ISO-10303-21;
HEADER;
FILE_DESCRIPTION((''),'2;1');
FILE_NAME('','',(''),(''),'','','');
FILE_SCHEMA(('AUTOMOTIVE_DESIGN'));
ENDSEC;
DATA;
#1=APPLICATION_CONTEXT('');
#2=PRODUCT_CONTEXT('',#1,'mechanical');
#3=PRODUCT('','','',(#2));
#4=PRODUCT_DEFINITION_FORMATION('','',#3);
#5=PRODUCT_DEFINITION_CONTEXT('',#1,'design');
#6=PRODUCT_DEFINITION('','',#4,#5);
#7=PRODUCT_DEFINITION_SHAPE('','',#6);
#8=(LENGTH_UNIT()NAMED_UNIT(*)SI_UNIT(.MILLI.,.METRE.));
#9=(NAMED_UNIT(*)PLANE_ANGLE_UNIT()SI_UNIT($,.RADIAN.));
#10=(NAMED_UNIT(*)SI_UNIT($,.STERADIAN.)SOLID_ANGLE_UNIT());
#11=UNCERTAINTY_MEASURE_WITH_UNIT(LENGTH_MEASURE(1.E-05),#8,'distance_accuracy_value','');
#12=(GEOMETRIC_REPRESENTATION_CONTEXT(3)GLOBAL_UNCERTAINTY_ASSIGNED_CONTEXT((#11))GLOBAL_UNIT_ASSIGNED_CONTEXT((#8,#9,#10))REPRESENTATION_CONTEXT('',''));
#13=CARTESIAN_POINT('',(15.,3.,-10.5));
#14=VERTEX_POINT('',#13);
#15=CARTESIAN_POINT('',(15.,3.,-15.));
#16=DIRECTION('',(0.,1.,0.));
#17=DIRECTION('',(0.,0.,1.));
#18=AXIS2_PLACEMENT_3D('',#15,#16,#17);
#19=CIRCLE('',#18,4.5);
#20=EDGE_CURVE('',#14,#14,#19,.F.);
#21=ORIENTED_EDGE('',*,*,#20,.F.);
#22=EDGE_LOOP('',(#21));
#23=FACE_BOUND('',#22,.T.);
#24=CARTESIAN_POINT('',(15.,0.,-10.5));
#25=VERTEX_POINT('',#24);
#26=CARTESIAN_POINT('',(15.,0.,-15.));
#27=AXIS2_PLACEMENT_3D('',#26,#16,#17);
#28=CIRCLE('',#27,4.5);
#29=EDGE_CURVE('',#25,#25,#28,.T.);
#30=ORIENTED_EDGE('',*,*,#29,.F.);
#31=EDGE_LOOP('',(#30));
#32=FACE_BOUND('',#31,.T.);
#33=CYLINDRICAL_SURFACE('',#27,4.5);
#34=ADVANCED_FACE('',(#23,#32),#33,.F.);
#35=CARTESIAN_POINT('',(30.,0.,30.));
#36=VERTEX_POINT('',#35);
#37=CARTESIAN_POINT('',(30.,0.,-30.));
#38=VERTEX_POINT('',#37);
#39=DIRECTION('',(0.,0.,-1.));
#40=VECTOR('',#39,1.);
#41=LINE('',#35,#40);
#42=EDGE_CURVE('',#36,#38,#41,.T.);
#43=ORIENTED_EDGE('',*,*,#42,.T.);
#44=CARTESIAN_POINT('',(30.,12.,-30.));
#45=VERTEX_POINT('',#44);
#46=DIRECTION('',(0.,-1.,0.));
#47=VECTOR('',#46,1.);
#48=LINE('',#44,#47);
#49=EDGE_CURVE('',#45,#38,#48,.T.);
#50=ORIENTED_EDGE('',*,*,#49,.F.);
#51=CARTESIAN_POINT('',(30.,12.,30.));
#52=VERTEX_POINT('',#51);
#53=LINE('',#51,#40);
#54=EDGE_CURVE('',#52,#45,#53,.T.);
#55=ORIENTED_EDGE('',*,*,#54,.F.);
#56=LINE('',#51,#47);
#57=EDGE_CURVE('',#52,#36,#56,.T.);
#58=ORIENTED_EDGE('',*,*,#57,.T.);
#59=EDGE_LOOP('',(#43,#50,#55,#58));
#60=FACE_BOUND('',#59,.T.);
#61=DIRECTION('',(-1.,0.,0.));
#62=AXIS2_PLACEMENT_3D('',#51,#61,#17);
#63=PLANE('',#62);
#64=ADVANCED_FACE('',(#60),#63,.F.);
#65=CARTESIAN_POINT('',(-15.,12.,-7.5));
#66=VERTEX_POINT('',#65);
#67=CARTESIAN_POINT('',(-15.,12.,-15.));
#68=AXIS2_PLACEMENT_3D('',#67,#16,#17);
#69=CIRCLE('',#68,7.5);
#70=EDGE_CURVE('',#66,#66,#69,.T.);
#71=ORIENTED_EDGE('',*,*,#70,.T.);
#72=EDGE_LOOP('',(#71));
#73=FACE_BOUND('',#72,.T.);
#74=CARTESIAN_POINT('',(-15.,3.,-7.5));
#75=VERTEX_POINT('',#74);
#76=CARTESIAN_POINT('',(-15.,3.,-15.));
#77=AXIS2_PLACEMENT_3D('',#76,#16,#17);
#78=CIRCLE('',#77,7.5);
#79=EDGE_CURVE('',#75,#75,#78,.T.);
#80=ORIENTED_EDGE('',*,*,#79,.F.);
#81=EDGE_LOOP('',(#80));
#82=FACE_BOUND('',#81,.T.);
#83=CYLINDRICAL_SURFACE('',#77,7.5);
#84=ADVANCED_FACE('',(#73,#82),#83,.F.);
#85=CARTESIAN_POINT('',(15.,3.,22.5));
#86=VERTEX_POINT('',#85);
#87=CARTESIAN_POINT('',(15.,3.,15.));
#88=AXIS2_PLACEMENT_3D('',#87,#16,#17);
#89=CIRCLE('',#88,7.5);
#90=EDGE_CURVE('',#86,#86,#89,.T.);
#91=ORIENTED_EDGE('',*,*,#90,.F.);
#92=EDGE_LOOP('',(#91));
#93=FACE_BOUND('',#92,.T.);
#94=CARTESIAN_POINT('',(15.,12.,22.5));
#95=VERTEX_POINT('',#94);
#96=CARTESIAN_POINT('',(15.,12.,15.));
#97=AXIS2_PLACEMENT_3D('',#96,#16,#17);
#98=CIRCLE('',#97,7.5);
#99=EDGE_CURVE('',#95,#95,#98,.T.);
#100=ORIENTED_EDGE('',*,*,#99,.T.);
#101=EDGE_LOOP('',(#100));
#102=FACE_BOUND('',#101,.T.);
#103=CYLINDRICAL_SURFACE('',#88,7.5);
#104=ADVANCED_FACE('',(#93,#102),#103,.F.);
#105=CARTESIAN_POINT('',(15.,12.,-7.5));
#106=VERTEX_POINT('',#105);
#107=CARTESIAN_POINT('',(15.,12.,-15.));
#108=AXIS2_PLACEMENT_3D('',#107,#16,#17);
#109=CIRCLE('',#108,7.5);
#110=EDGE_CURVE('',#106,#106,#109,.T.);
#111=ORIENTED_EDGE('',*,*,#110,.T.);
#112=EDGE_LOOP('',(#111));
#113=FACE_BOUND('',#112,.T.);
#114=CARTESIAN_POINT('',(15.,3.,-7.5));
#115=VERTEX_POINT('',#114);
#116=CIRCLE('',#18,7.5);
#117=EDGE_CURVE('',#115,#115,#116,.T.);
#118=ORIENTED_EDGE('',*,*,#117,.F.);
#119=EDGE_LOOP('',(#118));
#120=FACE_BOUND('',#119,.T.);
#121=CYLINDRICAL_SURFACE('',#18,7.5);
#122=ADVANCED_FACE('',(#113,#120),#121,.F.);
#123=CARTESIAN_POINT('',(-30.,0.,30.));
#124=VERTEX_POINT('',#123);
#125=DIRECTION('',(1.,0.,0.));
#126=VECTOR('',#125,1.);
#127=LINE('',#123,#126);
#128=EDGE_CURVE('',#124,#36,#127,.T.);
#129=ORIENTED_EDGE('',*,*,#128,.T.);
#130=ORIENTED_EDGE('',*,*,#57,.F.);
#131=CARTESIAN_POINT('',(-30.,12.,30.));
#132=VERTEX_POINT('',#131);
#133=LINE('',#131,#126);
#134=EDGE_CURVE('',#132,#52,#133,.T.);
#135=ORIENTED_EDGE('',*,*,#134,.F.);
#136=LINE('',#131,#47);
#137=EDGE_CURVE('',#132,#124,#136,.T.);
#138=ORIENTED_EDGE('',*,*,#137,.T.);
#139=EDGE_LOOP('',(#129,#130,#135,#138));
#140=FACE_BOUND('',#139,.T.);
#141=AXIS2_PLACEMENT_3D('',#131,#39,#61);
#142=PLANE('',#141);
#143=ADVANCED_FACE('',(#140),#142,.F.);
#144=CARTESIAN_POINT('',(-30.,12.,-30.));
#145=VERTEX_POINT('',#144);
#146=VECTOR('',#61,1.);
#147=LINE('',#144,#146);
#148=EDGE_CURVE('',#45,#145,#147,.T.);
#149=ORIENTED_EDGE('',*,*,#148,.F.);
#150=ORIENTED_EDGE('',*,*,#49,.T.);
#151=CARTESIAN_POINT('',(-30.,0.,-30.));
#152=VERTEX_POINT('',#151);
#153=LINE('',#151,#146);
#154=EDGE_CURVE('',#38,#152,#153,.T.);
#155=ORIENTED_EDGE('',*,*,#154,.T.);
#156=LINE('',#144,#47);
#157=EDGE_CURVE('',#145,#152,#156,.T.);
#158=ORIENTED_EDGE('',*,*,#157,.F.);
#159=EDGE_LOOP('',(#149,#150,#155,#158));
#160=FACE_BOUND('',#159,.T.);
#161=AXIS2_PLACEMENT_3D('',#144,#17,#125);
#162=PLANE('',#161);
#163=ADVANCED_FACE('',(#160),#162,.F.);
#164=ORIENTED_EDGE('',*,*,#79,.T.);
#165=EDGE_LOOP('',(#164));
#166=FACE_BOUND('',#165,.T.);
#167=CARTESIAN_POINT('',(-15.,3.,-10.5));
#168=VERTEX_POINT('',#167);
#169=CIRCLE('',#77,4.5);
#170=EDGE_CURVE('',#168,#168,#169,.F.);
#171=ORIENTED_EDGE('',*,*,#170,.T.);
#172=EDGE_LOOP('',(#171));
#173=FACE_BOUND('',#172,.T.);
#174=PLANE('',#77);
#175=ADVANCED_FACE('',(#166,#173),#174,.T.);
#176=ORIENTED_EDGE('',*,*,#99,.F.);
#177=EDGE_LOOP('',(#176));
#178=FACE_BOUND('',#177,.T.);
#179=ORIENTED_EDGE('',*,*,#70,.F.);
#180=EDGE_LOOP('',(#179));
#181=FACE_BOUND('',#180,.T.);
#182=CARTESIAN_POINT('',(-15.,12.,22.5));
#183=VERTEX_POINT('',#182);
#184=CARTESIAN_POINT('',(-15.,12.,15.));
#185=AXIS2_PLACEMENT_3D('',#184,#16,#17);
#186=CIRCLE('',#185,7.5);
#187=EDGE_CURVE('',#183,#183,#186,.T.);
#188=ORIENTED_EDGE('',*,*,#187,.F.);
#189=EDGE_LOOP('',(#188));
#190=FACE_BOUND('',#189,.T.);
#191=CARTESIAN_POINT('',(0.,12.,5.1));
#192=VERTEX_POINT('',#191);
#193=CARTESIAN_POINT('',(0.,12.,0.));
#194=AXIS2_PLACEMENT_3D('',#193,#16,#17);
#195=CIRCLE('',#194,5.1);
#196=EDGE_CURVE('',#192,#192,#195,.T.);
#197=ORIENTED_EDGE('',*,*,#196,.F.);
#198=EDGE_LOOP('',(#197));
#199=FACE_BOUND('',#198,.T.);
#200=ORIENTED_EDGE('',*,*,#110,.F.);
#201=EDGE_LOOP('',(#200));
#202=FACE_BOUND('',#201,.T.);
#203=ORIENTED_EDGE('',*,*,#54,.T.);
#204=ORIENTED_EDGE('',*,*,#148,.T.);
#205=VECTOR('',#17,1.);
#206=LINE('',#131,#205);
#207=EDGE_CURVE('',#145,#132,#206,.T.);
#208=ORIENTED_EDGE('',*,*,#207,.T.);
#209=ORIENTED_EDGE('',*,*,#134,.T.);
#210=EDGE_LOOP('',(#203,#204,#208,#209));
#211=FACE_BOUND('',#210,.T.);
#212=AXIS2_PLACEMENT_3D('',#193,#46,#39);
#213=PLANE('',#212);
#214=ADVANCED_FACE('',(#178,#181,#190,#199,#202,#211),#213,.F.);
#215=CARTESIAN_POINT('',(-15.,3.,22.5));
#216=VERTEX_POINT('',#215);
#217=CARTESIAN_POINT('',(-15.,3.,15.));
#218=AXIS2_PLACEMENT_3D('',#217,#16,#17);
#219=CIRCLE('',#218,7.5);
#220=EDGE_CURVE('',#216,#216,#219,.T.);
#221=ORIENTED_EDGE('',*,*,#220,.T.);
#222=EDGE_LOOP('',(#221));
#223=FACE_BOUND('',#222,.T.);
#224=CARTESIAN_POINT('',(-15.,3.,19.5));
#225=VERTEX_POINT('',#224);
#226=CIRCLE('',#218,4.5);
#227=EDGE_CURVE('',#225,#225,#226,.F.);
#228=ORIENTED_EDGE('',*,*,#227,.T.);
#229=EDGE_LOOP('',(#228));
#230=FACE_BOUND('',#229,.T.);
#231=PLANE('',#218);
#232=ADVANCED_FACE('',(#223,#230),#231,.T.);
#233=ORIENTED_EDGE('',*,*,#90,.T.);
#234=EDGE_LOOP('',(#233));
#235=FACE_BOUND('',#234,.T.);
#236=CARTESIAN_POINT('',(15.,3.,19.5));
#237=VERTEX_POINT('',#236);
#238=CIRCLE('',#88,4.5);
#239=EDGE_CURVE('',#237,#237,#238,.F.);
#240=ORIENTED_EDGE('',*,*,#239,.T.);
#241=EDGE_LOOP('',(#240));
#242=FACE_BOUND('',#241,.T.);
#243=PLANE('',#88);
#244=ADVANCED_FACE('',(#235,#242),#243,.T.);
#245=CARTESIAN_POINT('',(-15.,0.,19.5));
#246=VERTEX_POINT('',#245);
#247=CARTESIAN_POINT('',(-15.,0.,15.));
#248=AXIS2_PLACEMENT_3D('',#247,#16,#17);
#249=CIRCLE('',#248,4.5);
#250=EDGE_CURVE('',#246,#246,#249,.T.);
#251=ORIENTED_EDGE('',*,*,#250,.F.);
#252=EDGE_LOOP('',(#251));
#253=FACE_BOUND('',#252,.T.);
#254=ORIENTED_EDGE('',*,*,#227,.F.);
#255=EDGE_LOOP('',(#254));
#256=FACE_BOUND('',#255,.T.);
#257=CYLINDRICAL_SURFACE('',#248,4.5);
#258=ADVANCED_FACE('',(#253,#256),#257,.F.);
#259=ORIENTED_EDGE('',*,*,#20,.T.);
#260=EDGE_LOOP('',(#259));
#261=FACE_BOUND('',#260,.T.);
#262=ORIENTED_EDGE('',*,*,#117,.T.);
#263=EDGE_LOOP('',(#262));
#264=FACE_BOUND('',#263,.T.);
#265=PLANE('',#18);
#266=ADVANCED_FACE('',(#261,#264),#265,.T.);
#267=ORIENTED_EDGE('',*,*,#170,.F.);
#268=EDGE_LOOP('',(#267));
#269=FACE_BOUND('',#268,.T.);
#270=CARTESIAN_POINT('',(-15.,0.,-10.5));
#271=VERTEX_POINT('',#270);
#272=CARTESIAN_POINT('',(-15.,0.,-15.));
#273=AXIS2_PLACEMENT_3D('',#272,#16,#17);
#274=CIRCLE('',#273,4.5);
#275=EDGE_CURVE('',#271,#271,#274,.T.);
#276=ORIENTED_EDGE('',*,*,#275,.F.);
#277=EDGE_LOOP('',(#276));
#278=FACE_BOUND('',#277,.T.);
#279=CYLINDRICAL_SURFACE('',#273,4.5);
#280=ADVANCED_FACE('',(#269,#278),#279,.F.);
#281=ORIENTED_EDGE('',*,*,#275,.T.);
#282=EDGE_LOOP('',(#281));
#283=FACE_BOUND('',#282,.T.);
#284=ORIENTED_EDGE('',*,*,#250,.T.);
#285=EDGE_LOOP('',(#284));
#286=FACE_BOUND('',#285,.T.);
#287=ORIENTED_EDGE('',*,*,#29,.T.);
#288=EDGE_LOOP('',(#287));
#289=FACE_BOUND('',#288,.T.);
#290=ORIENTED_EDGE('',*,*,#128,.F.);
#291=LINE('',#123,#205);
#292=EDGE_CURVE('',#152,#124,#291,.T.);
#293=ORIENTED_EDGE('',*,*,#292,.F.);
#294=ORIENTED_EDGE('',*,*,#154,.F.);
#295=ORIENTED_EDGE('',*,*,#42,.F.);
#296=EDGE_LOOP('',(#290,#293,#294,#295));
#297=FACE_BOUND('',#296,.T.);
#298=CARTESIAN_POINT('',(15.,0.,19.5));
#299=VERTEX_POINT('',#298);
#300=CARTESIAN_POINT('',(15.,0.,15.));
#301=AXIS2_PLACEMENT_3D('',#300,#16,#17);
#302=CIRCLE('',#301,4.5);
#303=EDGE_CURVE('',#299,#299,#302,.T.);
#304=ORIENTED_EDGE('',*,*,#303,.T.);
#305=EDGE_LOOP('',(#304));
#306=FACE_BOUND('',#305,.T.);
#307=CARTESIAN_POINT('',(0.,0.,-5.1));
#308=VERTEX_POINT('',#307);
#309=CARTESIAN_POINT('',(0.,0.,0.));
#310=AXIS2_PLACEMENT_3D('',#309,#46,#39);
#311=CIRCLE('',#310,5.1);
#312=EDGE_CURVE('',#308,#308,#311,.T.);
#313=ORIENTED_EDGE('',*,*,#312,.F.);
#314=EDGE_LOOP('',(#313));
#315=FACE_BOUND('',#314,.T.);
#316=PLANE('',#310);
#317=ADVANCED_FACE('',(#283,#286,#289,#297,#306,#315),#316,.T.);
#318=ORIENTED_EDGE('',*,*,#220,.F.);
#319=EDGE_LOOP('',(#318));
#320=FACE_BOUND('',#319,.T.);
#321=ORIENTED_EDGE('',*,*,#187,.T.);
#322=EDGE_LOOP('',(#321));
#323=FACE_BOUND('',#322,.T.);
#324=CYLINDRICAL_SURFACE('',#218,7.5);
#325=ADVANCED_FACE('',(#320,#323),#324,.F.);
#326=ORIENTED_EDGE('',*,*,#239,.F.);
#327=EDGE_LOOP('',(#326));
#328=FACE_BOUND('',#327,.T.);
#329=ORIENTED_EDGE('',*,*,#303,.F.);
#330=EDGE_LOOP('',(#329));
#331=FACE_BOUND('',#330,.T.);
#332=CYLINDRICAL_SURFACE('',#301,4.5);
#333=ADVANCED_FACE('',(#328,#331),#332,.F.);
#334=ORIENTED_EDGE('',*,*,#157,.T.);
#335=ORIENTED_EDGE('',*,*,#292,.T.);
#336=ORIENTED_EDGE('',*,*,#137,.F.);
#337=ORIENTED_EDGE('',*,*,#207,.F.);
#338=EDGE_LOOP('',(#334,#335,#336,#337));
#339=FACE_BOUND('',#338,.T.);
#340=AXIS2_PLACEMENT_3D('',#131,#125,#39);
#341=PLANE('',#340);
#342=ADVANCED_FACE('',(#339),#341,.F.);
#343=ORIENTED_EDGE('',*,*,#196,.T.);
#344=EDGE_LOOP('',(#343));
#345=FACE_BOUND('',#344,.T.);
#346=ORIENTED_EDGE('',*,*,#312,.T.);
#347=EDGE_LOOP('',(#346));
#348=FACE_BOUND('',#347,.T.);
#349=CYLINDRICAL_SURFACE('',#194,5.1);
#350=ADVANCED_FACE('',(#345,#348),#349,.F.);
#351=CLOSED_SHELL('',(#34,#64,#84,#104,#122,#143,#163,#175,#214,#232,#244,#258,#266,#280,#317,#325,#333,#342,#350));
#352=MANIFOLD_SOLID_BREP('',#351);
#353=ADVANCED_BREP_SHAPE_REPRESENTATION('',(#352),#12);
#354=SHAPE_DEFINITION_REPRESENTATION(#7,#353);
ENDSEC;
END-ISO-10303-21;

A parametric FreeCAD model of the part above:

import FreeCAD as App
import Part
import Sketcher

V = App.Vector
Q = App.Units.Quantity


def add_polygon(sketch, points):
    """Adds a closed chain of lines whose ends are joined by coincident constraints."""
    first, n = sketch.GeometryCount, len(points)
    for a, b in zip(points, points[1:] + points[:1]):
        sketch.addGeometry(Part.LineSegment(App.Vector(*a, 0), App.Vector(*b, 0)), False)
    for i in range(n):
        sketch.addConstraint(Sketcher.Constraint("Coincident", first + i, 2, first + (i + 1) % n, 1))

doc = App.newDocument("Part")
body = doc.addObject("PartDesign::Body", "Body")

# Sketch on XZ plane
sketch1 = body.newObject("Sketcher::SketchObject", "Sketch")
sketch1.AttachmentSupport = (doc.getObject("XZ_Plane"), [""])
sketch1.MapMode = "FlatFace"
add_polygon(sketch1, [(-30, -30), (-30, 30), (30, 30), (30, -30)])  # lines 0-3
sketch1.addConstraint(Sketcher.Constraint("Vertical", 0))
sketch1.addConstraint(Sketcher.Constraint("Horizontal", 1))
sketch1.addConstraint(Sketcher.Constraint("Vertical", 2))
sketch1.addConstraint(Sketcher.Constraint("Horizontal", 3))
sketch1.addConstraint(Sketcher.Constraint("Symmetric", 0, 2, 2, 2, -1, 1))
sketch1.addConstraint(Sketcher.Constraint("Equal", 3, 0))
sketch1.addConstraint(Sketcher.Constraint("DistanceX", 1, 1, 1, 2, Q("60 mm")))
pad1 = body.newObject("PartDesign::Pad", "Pad")
pad1.Profile = sketch1
pad1.Length = 12
pad1.Reversed = True

# Sketch on XZ plane
sketch2 = body.newObject("Sketcher::SketchObject", "Sketch001")
sketch2.AttachmentSupport = (doc.getObject("XZ_Plane"), [""])
sketch2.MapMode = "FlatFace"
sketch2.AttachmentOffset = App.Placement(V(0, 0, -12), App.Rotation())
sketch2.addGeometry(Part.Circle(V(0, 0, 0), V(0, 0, 1), 5), False)
sketch2.addConstraint(Sketcher.Constraint("Coincident", 0, 3, -1, 1))
sketch2.addConstraint(Sketcher.Constraint("Diameter", 0, Q("10.2 mm")))
doc.recompute()
hole = body.newObject("PartDesign::Hole", "Hole")
hole.Profile = sketch2
hole.ThreadType = "None"
hole.Diameter = 10.2
hole.DepthType = "Dimension"
hole.Depth = 12
hole.DrillPoint = "Flat"
hole.Reversed = True

# Sketch on XZ plane
sketch3 = body.newObject("Sketcher::SketchObject", "Sketch002")
sketch3.AttachmentSupport = (doc.getObject("XZ_Plane"), [""])
sketch3.MapMode = "FlatFace"
sketch3.AttachmentOffset = App.Placement(V(0, 0, -12), App.Rotation())
sketch3.addGeometry(Part.Circle(V(-15, -15, 0), V(0, 0, 1), 4.5), False)
sketch3.addGeometry(Part.Circle(V(15, -15, 0), V(0, 0, 1), 4.5), False)
sketch3.addGeometry(Part.Circle(V(15, 15, 0), V(0, 0, 1), 4.5), False)
sketch3.addGeometry(Part.Circle(V(-15, 15, 0), V(0, 0, 1), 4.5), False)
sketch3.addConstraint(Sketcher.Constraint("Equal", 0, 1))
sketch3.addConstraint(Sketcher.Constraint("Equal", 1, 2))
sketch3.addConstraint(Sketcher.Constraint("Equal", 2, 3))
sketch3.addConstraint(Sketcher.Constraint("Symmetric", 0, 3, 2, 3, -1, 1))
sketch3.addConstraint(Sketcher.Constraint("Symmetric", 1, 3, 3, 3, -1, 1))
sketch3.addConstraint(Sketcher.Constraint("Symmetric", 0, 3, 1, 3, -2))
sketch3.addConstraint(Sketcher.Constraint("Diameter", 0, Q("9 mm")))
sketch3.addConstraint(Sketcher.Constraint("DistanceX", 0, 3, -1, 1, Q("15 mm")))
sketch3.addConstraint(Sketcher.Constraint("DistanceY", 0, 3, -1, 1, Q("15 mm")))
pocket1 = body.newObject("PartDesign::Pocket", "Pocket")
pocket1.Profile = sketch3
pocket1.Type = "ThroughAll"
pocket1.Reversed = True

# Sketch on XZ plane
sketch4 = body.newObject("Sketcher::SketchObject", "Sketch003")
sketch4.AttachmentSupport = (doc.getObject("XZ_Plane"), [""])
sketch4.MapMode = "FlatFace"
sketch4.AttachmentOffset = App.Placement(V(0, 0, -12), App.Rotation())
sketch4.addGeometry(Part.Circle(V(-15, -15, 0), V(0, 0, 1), 8), False)
sketch4.addGeometry(Part.Circle(V(15, -15, 0), V(0, 0, 1), 8), False)
sketch4.addGeometry(Part.Circle(V(15, 15, 0), V(0, 0, 1), 8), False)
sketch4.addGeometry(Part.Circle(V(-15, 15, 0), V(0, 0, 1), 8), False)
sketch4.addConstraint(Sketcher.Constraint("Equal", 0, 1))
sketch4.addConstraint(Sketcher.Constraint("Equal", 1, 2))
sketch4.addConstraint(Sketcher.Constraint("Equal", 2, 3))
sketch4.addConstraint(Sketcher.Constraint("Symmetric", 0, 3, 2, 3, -1, 1))
sketch4.addConstraint(Sketcher.Constraint("Symmetric", 1, 3, 3, 3, -1, 1))
sketch4.addConstraint(Sketcher.Constraint("Symmetric", 0, 3, 1, 3, -2))
sketch4.addConstraint(Sketcher.Constraint("Diameter", 0, Q("15 mm")))
sketch4.addConstraint(Sketcher.Constraint("DistanceX", 0, 3, -1, 1, Q("15 mm")))
sketch4.addConstraint(Sketcher.Constraint("DistanceY", 0, 3, -1, 1, Q("15 mm")))
pocket2 = body.newObject("PartDesign::Pocket", "Pocket001")
pocket2.Profile = sketch4
pocket2.Length = 9
pocket2.Reversed = True

doc.recompute()
